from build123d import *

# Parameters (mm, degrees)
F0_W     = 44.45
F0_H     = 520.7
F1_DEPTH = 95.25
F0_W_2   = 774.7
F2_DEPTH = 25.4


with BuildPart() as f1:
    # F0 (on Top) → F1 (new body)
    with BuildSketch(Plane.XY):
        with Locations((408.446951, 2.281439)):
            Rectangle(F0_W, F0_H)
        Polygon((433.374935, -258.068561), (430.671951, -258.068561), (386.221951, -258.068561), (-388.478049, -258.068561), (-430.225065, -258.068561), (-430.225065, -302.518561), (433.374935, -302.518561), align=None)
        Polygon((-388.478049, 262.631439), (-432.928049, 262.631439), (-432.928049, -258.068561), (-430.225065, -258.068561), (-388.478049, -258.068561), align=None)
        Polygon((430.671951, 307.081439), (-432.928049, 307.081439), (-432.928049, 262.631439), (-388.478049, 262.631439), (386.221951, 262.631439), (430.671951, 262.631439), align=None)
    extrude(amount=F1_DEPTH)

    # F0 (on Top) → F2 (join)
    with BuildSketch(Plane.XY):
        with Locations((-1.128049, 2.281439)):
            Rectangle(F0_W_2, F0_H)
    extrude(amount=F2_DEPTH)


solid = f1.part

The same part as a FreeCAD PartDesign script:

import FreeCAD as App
import Part
import Sketcher
from FreeCAD import Vector
Q = App.Units.Quantity

doc = App.newDocument("Part")
body = doc.addObject("PartDesign::Body", "Body")

# Sketch on XY plane
sketch1 = body.newObject("Sketcher::SketchObject", "Sketch")
sketch1.AttachmentSupport = (doc.getObject("XY_Plane"), [""])
sketch1.MapMode = "FlatFace"
sketch1.addGeometry([
    Part.LineSegment(Vector(-432.9, -258.1, 0), Vector(-430.2, -258.1, 0)),  # 0
    Part.LineSegment(Vector(-430.2, -258.1, 0), Vector(-430.2, -302.5, 0)),  # 1
    Part.LineSegment(Vector(-430.2, -302.5, 0), Vector(433.4, -302.5, 0)),  # 2
    Part.LineSegment(Vector(433.4, -302.5, 0), Vector(433.4, -258.1, 0)),  # 3
    Part.LineSegment(Vector(433.4, -258.1, 0), Vector(430.7, -258.1, 0)),  # 4
    Part.LineSegment(Vector(430.7, -258.1, 0), Vector(430.7, 307.1, 0)),  # 5
    Part.LineSegment(Vector(430.7, 307.1, 0), Vector(-432.9, 307.1, 0)),  # 6
    Part.LineSegment(Vector(-432.9, 307.1, 0), Vector(-432.9, -258.1, 0)),  # 7
    Part.LineSegment(Vector(386.2, 262.6, 0), Vector(386.2, -258.1, 0)),  # 8
    Part.LineSegment(Vector(386.2, -258.1, 0), Vector(-388.5, -258.1, 0)),  # 9
    Part.LineSegment(Vector(-388.5, -258.1, 0), Vector(-388.5, 262.6, 0)),  # 10
    Part.LineSegment(Vector(-388.5, 262.6, 0), Vector(386.2, 262.6, 0)),  # 11
], False)
sketch1.addConstraint([
    Sketcher.Constraint("Coincident", 0, 2, 1, 1),
    Sketcher.Constraint("Coincident", 1, 2, 2, 1),
    Sketcher.Constraint("Coincident", 2, 2, 3, 1),
    Sketcher.Constraint("Coincident", 3, 2, 4, 1),
    Sketcher.Constraint("Coincident", 4, 2, 5, 1),
    Sketcher.Constraint("Coincident", 5, 2, 6, 1),
    Sketcher.Constraint("Coincident", 6, 2, 7, 1),
    Sketcher.Constraint("Coincident", 7, 2, 0, 1),
    Sketcher.Constraint("Coincident", 8, 2, 9, 1),
    Sketcher.Constraint("Coincident", 9, 2, 10, 1),
    Sketcher.Constraint("Coincident", 10, 2, 11, 1),
    Sketcher.Constraint("Coincident", 11, 2, 8, 1),
    Sketcher.Constraint("Horizontal", 0),
    Sketcher.Constraint("Vertical", 1),
    Sketcher.Constraint("Horizontal", 2),
    Sketcher.Constraint("Vertical", 3),
    Sketcher.Constraint("Horizontal", 4),
    Sketcher.Constraint("Vertical", 5),
    Sketcher.Constraint("Horizontal", 6),
    Sketcher.Constraint("Vertical", 7),
    Sketcher.Constraint("Vertical", 8),
    Sketcher.Constraint("Horizontal", 9),
    Sketcher.Constraint("Vertical", 10),
    Sketcher.Constraint("Horizontal", 11),
    Sketcher.Constraint("Horizontal", 0, 2, 3, 2),
    Sketcher.Constraint("Horizontal", 7, 2, 8, 2),
    Sketcher.Constraint("Equal", 0, 4),
    Sketcher.Constraint("DistanceX", 2, 1, 2, 2, Q("34 in")),
    Sketcher.Constraint("DistanceX", 9, 2, 9, 1, Q("30.5 in")),
    Sketcher.Constraint("DistanceY", 8, 2, 8, 1, Q("20.5 in")),
    Sketcher.Constraint("DistanceY", 2, 2, 5, 2, Q("24 in")),
    Sketcher.Constraint("DistanceY", 1, 2, 1, 1, Q("1.75 in")),
    Sketcher.Constraint("DistanceX", 8, 2, 4, 2, Q("1.75 in")),
    Sketcher.Constraint("DistanceX", 0, 1, 0, 2, 2.702984),
    Sketcher.Constraint("DistanceY", 0, 2, -1, 1, 258.068561),
    Sketcher.Constraint("DistanceX", -1, 1, 4, 2, 430.671951),
])
pad1 = body.newObject("PartDesign::Pad", "Pad")
pad1.Profile = sketch1
pad1.Length = Q("3.75 in")

# Sketch on XY plane
sketch2 = body.newObject("Sketcher::SketchObject", "Sketch001")
sketch2.AttachmentSupport = (doc.getObject("XY_Plane"), [""])
sketch2.MapMode = "FlatFace"
sketch2.addGeometry([
    Part.LineSegment(Vector(-388, 263, 0), Vector(-388, -258, 0)),
    Part.LineSegment(Vector(-388, -258, 0), Vector(386, -258, 0)),
    Part.LineSegment(Vector(386, -258, 0), Vector(386, 263, 0)),
    Part.LineSegment(Vector(386, 263, 0), Vector(-388, 263, 0)),
], False)
sketch2.addConstraint([
    Sketcher.Constraint("Coincident", 0, 2, 1, 1),
    Sketcher.Constraint("Coincident", 1, 2, 2, 1),
    Sketcher.Constraint("Coincident", 2, 2, 3, 1),
    Sketcher.Constraint("Coincident", 3, 2, 0, 1),
    Sketcher.Constraint("Vertical", 0),
    Sketcher.Constraint("Horizontal", 1),
    Sketcher.Constraint("Vertical", 2),
    Sketcher.Constraint("Horizontal", 3),
    Sketcher.Constraint("DistanceX", 1, 1, 1, 2, Q("30.5 in")),
    Sketcher.Constraint("DistanceY", 0, 2, 0, 1, Q("20.5 in")),
    Sketcher.Constraint("DistanceX", 0, 2, -1, 1, 388.478049),
    Sketcher.Constraint("DistanceY", 0, 2, -1, 1, 258.068561),
])
pad2 = body.newObject("PartDesign::Pad", "Pad001")
pad2.Profile = sketch2
pad2.Length = Q("1 in")

doc.recompute()
